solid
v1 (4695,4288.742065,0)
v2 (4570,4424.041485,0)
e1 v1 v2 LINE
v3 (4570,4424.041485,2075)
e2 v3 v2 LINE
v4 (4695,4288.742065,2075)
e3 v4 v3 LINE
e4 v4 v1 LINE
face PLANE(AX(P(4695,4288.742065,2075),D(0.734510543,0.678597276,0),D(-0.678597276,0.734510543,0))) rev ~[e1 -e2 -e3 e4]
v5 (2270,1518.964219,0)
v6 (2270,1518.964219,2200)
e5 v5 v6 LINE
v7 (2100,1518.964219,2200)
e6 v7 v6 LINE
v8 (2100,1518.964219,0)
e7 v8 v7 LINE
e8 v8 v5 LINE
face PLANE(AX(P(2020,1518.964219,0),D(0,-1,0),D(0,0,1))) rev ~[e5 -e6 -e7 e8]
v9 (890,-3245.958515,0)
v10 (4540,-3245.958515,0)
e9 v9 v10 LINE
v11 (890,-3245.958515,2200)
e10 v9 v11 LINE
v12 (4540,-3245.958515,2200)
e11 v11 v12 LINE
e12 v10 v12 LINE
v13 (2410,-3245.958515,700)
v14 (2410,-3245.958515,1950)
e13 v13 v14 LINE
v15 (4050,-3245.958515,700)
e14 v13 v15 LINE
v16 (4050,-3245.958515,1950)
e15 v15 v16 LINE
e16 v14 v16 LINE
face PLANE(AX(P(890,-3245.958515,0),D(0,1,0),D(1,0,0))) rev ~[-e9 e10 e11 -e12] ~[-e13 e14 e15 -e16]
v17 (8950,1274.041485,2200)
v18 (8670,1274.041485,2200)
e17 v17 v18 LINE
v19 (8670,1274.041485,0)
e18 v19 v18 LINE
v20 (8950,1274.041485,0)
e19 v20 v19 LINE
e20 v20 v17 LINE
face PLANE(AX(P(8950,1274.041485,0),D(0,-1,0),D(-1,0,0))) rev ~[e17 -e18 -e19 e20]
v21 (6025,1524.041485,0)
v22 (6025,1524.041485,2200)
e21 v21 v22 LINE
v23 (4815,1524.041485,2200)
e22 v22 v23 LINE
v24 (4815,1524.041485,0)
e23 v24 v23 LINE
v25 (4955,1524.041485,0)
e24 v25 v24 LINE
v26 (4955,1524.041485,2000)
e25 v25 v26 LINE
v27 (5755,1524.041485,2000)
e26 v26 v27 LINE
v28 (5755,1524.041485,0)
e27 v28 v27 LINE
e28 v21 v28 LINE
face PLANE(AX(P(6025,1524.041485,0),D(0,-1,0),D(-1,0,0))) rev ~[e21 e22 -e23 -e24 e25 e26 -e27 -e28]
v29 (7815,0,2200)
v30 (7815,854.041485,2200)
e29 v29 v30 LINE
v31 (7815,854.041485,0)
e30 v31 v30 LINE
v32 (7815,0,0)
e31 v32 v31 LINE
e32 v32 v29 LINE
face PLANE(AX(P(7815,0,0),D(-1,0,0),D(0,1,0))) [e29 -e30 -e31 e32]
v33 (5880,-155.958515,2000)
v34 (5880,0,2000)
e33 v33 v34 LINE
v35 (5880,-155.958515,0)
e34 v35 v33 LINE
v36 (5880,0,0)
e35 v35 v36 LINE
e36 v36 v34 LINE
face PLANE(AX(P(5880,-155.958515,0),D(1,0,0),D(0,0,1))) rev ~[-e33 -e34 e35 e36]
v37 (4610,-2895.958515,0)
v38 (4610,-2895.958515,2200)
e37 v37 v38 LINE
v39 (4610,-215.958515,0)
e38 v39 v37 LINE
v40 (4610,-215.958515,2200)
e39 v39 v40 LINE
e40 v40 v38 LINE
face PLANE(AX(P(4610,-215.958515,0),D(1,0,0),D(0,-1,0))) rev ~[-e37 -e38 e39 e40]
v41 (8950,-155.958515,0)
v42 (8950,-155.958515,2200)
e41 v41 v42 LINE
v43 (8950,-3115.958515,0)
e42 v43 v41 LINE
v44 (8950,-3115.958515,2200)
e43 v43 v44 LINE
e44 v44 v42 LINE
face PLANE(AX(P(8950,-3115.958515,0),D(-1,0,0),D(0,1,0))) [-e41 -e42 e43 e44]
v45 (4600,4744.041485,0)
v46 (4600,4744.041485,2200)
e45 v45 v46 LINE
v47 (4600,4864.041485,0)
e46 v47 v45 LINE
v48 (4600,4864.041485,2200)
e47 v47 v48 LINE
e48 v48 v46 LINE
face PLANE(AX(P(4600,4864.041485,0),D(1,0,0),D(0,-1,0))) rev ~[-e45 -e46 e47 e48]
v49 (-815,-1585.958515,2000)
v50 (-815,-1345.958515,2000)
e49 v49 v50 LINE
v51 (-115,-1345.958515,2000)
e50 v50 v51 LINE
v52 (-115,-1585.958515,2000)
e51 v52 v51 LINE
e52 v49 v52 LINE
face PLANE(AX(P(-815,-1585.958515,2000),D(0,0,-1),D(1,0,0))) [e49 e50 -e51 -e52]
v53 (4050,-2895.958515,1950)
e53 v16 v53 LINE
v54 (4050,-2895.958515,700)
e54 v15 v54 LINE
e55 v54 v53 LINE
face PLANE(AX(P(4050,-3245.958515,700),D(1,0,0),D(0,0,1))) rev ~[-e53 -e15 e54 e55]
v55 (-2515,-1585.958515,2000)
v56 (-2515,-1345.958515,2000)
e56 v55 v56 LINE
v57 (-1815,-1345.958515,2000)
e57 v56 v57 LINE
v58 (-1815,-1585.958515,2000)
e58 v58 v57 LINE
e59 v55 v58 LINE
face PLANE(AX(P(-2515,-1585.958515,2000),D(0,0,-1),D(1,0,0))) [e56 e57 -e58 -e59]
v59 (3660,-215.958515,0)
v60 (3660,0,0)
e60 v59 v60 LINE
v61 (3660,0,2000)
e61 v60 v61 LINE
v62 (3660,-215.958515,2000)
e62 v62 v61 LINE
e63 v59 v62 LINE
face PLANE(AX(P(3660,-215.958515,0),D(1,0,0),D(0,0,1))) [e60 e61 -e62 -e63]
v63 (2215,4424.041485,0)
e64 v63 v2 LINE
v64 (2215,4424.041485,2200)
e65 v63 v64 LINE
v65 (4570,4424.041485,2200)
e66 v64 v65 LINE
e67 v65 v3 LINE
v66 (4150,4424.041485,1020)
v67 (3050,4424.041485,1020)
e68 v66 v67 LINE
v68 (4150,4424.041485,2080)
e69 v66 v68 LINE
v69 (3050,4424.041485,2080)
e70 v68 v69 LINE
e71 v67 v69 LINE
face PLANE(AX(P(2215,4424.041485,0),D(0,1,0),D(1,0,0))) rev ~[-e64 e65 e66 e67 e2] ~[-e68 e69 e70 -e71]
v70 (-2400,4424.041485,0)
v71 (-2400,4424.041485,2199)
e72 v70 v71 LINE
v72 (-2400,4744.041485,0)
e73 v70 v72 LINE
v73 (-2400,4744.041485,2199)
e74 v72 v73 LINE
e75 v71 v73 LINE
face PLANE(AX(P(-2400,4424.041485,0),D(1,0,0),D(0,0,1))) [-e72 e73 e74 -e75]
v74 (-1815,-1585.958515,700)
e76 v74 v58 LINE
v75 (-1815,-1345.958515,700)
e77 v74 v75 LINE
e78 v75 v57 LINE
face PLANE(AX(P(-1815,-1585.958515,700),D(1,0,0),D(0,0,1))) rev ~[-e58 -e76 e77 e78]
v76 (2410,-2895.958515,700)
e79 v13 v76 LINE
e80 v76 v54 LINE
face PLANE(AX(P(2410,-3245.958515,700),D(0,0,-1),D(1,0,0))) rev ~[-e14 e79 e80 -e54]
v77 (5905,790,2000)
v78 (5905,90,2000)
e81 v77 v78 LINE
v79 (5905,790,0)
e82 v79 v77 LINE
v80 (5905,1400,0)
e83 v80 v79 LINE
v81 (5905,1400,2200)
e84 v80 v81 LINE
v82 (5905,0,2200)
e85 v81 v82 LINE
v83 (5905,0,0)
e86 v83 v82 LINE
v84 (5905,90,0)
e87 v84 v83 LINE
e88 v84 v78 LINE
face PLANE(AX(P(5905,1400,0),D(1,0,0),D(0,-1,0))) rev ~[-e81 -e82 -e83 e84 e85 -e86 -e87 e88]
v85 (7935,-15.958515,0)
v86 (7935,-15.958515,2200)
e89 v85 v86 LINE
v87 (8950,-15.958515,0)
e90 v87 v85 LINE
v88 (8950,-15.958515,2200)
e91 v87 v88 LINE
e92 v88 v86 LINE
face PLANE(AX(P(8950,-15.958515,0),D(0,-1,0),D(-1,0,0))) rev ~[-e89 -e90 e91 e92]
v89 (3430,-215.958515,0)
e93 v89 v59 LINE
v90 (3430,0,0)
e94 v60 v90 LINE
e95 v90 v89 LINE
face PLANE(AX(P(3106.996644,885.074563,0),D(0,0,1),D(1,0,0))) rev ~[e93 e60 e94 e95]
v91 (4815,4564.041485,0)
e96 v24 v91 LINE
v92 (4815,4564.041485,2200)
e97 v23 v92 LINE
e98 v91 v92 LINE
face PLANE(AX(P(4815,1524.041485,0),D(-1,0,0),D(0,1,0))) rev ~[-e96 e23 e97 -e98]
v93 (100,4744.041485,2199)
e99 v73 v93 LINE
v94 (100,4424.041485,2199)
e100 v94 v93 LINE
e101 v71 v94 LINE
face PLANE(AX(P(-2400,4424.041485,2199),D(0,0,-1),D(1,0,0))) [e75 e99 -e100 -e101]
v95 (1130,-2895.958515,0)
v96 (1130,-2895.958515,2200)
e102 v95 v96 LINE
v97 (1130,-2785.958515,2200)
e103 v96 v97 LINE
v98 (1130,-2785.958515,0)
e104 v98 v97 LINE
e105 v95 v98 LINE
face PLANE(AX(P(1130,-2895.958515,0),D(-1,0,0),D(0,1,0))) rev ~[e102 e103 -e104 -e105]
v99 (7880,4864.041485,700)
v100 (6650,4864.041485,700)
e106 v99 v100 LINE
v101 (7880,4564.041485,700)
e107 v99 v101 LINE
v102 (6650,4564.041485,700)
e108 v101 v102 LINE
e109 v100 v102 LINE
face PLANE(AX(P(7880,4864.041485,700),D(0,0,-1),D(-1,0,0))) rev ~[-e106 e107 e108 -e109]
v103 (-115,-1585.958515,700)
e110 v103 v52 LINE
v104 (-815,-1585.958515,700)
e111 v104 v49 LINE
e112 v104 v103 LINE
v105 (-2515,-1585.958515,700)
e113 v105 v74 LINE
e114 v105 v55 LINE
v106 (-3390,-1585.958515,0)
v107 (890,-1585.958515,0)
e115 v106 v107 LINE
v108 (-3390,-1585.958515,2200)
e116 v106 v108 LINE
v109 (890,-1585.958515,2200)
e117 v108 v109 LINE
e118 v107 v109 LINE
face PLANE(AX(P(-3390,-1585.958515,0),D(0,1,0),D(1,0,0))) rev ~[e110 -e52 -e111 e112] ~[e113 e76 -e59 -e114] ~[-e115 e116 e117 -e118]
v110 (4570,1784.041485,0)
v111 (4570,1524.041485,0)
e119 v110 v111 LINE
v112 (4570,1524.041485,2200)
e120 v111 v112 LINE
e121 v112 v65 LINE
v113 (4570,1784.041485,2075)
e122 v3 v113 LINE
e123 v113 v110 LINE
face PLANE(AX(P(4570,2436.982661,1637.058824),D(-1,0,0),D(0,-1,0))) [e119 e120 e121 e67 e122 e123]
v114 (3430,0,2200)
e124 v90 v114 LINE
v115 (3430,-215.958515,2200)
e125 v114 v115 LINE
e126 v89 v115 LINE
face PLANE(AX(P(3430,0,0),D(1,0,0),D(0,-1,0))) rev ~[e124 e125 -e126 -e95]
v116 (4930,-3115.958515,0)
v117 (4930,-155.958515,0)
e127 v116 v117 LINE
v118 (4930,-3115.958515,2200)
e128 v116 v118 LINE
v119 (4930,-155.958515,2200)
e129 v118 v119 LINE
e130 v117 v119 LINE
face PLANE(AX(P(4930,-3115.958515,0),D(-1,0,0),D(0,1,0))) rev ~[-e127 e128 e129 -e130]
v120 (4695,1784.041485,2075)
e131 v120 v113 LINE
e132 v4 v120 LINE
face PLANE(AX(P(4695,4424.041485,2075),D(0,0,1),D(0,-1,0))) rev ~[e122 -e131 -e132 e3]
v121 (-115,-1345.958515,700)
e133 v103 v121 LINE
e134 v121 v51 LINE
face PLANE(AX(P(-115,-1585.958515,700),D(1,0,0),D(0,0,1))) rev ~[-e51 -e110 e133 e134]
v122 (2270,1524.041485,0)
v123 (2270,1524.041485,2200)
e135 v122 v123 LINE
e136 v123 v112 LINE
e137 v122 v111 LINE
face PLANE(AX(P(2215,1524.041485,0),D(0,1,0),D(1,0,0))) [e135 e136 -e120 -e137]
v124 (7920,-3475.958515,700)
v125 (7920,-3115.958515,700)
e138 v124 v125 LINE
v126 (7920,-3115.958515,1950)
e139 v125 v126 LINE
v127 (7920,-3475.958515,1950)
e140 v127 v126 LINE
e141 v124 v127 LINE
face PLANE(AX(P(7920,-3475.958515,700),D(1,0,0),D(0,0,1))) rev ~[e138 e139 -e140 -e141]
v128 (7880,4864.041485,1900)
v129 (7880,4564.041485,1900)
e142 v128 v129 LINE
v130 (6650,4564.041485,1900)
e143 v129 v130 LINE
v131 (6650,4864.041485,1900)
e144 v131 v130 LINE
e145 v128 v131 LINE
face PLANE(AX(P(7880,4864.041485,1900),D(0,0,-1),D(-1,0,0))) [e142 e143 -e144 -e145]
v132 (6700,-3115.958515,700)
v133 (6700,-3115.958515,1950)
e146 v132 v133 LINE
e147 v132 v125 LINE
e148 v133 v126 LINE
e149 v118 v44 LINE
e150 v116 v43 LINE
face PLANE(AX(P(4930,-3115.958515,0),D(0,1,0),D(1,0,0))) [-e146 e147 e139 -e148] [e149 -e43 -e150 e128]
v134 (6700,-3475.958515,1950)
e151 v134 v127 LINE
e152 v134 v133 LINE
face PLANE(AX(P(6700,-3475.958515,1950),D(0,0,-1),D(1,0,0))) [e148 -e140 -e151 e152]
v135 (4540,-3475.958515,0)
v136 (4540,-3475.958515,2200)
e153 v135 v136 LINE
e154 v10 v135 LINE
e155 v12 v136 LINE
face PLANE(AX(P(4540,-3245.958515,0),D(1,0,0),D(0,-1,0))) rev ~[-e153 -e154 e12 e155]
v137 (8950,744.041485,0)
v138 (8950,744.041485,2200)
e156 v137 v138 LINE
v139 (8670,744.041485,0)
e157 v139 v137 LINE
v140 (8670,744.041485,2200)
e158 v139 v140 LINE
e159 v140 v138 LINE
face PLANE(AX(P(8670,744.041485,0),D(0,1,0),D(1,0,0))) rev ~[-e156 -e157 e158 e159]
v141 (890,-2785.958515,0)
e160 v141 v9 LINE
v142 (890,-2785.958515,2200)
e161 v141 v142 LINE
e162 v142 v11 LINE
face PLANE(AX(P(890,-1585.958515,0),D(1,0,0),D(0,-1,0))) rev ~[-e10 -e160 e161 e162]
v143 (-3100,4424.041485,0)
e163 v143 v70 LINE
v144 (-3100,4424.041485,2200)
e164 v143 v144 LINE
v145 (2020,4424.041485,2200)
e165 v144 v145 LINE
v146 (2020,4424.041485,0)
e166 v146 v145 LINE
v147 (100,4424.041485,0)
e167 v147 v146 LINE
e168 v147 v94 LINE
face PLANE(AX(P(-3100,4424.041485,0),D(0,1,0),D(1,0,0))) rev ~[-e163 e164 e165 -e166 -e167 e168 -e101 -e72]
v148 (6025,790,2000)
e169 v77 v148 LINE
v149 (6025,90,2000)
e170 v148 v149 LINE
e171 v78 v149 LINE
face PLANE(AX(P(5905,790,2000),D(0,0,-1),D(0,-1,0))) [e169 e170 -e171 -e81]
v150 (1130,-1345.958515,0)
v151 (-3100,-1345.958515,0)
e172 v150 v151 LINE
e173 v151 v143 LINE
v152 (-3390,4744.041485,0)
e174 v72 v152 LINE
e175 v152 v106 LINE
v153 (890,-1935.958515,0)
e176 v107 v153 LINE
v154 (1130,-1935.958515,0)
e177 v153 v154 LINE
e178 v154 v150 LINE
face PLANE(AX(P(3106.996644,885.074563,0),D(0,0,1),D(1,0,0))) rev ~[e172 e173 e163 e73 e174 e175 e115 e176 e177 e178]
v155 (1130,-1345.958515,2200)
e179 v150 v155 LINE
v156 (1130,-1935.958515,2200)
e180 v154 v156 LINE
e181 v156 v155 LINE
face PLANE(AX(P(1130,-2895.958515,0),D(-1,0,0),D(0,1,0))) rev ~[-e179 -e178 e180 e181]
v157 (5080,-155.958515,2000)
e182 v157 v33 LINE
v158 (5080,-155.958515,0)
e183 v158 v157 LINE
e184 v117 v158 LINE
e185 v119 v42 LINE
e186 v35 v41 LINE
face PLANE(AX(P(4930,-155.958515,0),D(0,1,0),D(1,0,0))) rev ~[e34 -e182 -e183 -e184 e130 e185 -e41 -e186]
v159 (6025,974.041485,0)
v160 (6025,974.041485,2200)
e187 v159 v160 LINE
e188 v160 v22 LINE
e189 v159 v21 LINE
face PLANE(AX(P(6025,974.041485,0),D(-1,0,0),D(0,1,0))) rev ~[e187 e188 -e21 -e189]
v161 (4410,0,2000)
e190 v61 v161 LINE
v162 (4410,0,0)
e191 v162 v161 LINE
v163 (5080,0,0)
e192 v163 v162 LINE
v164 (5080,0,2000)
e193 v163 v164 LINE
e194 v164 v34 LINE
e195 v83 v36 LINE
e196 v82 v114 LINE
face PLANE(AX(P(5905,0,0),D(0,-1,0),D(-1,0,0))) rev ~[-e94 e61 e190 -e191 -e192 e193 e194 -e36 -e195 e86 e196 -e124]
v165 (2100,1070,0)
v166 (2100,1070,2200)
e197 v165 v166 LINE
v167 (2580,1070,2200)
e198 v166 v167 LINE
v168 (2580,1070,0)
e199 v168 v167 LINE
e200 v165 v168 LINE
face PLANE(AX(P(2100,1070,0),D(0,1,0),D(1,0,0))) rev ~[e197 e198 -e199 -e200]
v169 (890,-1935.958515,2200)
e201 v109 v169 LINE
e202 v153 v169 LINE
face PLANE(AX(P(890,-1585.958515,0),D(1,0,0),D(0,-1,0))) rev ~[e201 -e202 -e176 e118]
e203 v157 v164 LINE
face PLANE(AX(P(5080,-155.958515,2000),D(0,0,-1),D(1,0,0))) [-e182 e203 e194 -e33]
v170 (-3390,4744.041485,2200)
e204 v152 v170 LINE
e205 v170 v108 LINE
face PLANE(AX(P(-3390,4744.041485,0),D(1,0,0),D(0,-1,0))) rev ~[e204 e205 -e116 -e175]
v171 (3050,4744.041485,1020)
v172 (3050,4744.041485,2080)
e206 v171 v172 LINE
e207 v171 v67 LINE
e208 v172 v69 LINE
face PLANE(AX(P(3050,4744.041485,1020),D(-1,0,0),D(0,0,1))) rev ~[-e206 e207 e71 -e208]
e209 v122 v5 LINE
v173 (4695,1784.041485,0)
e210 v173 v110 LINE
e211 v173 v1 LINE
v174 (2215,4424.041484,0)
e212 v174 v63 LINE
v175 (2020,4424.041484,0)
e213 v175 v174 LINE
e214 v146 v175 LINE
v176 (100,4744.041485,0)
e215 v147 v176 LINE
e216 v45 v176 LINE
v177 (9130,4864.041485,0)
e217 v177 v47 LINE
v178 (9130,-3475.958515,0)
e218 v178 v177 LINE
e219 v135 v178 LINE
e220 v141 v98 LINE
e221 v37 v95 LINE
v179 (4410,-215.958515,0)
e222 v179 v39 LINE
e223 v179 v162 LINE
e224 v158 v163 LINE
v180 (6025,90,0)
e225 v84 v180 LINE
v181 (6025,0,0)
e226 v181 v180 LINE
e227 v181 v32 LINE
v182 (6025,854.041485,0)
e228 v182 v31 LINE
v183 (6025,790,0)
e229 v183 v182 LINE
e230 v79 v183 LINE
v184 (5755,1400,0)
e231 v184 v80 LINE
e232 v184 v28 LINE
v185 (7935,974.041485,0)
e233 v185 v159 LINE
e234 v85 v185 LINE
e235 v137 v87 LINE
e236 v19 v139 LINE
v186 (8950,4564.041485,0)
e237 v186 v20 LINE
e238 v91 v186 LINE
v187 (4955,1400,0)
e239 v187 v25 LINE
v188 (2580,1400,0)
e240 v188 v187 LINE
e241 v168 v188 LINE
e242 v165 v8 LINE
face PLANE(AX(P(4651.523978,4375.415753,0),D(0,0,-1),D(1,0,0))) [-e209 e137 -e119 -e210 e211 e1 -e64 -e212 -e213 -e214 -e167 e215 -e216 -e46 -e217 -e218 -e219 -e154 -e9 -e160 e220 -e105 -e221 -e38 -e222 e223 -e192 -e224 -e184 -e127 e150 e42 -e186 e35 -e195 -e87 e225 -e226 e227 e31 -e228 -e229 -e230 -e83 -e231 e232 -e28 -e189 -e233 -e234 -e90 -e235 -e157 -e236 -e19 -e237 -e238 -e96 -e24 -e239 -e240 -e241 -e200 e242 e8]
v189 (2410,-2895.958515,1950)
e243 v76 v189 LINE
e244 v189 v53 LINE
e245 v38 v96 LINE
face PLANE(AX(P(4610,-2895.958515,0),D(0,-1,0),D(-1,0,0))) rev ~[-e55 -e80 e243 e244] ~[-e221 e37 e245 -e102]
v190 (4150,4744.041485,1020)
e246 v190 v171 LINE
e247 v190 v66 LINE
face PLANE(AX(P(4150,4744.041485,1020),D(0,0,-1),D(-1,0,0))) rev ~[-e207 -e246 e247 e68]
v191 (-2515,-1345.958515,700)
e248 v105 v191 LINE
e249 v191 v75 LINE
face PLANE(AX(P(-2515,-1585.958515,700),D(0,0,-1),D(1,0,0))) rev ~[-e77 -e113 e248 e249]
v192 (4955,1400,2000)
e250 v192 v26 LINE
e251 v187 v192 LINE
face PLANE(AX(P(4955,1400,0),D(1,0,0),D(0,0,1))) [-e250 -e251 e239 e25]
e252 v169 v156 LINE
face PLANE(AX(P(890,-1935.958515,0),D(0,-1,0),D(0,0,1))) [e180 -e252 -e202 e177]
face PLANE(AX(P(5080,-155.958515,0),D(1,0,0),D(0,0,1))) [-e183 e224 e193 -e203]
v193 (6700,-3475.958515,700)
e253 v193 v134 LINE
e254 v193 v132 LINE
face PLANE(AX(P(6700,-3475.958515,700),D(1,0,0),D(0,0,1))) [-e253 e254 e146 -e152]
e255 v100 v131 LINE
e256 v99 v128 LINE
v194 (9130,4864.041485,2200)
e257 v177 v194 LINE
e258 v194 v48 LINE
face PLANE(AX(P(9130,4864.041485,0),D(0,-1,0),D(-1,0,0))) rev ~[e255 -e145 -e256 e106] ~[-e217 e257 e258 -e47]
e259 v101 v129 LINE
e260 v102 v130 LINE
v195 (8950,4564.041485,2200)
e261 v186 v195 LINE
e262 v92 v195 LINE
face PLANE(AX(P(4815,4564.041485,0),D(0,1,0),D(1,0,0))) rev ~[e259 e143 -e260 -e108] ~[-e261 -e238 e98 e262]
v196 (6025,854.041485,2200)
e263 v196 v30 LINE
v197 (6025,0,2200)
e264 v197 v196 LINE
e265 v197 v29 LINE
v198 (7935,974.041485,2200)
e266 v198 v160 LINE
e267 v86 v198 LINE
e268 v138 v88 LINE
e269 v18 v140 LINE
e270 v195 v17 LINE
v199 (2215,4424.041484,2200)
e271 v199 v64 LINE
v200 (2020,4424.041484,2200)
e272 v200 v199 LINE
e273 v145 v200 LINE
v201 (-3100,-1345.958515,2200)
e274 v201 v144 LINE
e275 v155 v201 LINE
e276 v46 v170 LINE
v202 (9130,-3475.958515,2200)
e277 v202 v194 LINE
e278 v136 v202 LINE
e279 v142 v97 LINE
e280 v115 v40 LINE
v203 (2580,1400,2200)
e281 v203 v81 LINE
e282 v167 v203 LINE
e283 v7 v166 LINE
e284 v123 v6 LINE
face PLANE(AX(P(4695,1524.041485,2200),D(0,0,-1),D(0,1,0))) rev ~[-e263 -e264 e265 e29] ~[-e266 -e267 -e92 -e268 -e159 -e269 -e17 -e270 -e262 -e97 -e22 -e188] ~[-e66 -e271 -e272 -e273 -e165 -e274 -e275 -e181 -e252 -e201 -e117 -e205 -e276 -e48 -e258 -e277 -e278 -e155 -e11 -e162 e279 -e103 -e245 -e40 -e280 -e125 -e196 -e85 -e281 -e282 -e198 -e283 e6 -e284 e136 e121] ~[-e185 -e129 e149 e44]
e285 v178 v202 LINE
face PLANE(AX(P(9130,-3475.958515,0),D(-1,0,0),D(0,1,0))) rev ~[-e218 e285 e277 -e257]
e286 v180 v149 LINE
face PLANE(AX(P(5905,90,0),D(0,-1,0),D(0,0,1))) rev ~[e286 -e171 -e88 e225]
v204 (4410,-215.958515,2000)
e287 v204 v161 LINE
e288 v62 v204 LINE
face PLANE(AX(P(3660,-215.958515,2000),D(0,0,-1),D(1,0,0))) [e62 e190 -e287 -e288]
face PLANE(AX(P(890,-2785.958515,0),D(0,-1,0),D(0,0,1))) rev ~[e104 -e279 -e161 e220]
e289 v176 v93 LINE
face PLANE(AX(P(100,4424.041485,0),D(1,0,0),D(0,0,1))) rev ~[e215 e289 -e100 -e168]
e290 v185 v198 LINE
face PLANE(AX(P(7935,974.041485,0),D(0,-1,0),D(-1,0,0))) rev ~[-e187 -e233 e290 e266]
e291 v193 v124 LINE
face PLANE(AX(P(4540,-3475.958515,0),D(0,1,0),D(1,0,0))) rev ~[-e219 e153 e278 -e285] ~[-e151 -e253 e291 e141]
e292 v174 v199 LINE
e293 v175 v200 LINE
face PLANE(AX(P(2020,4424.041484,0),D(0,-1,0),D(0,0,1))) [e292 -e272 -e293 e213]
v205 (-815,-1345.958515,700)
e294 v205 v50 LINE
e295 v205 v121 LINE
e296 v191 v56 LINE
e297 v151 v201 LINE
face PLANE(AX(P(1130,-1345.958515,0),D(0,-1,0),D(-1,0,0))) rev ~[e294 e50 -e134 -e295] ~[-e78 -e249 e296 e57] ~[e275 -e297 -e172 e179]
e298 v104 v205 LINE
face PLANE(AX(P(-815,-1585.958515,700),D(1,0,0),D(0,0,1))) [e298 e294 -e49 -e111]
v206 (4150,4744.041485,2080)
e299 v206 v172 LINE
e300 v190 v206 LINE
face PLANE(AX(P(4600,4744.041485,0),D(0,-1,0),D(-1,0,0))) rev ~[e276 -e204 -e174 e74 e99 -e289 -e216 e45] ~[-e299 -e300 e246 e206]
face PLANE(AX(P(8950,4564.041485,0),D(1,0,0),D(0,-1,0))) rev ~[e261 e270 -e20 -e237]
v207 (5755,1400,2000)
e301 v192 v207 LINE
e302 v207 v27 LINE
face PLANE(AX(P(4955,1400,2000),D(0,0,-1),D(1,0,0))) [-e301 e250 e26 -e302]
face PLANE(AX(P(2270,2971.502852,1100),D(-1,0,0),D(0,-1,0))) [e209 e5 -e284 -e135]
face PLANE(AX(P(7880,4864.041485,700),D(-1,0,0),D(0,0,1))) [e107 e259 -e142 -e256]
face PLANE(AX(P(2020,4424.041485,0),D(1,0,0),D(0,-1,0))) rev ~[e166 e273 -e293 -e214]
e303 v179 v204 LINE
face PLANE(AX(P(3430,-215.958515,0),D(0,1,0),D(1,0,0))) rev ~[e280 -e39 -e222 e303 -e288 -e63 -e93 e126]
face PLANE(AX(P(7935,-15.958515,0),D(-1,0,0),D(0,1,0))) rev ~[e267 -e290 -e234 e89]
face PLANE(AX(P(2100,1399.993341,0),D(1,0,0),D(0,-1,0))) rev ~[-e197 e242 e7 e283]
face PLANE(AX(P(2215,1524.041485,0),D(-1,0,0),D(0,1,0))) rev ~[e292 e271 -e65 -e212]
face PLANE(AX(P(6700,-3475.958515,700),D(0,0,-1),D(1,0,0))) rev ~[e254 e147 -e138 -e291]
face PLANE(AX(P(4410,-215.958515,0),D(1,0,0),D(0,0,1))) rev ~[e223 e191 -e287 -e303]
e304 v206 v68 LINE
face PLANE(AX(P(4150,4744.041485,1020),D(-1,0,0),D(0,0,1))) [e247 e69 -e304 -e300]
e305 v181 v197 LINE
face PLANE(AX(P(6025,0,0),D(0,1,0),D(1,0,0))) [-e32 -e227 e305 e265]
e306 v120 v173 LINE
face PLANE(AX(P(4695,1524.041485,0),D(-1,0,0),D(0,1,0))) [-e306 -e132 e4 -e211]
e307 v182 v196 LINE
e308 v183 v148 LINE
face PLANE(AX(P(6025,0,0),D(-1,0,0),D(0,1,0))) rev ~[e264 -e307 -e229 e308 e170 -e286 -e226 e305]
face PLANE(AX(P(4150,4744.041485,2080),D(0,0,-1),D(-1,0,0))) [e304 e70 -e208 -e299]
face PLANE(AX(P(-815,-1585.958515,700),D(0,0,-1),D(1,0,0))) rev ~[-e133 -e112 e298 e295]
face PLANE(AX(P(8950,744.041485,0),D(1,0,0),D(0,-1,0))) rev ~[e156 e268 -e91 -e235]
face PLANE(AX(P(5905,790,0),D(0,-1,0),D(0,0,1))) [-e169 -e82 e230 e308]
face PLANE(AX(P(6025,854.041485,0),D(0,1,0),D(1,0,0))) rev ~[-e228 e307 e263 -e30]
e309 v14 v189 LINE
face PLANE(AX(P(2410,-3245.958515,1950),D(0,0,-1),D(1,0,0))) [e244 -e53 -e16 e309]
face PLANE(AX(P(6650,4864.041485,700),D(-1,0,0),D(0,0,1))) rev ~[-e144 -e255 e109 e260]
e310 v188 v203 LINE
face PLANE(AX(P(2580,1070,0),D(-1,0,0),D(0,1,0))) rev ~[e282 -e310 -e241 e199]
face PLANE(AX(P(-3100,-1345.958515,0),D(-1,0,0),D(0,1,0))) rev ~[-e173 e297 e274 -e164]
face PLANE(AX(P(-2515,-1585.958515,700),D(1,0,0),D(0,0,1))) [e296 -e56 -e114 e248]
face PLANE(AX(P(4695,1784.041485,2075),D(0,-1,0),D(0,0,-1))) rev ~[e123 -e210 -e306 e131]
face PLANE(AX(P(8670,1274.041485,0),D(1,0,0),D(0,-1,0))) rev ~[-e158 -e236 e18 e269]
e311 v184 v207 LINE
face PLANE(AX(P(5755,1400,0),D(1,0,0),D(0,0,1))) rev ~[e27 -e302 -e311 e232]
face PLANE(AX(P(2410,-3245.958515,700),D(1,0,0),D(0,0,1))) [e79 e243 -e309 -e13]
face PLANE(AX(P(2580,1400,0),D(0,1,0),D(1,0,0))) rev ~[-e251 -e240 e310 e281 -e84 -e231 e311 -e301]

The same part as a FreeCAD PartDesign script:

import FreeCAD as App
import Part
import Sketcher

V = App.Vector


def add_polygon(sketch, points):
    """Adds a closed chain of lines whose ends are joined by coincident constraints."""
    first, n = sketch.GeometryCount, len(points)
    for a, b in zip(points, points[1:] + points[:1]):
        sketch.addGeometry(Part.LineSegment(App.Vector(*a, 0), App.Vector(*b, 0)), False)
    for i in range(n):
        sketch.addConstraint(Sketcher.Constraint("Coincident", first + i, 2, first + (i + 1) % n, 1))

doc = App.newDocument("Part")
params = doc.addObject("Spreadsheet::Sheet", "Params")
for row, (alias, value) in enumerate([
    ("sketch1_width", "4280 mm"),
    ("sketch1_width2", "3650 mm"),
    ("sketch1_width3", "4590 mm"),
    ("sketch1_width4", "4530 mm"),
    ("sketch1_width5", "4020 mm"),
    ("pad1_length", "2200 mm"),
    ("sketch2_width", "2500 mm"),
    ("sketch2_height", "2199 mm"),
    ("pocket1_length", "350 mm"),
    ("sketch3_height", "2200 mm"),
    ("pocket2_length", "250 mm"),
    ("sketch4_width", "990 mm"),
    ("sketch4_height", "2200 mm"),
    ("pocket3_length", "130 mm"),
    ("sketch5_width", "750 mm"),
    ("sketch5_height", "2000 mm"),
    ("pocket4_length", "250 mm"),
    ("sketch6_width", "800 mm"),
    ("sketch6_height", "2000 mm"),
    ("pocket5_length", "200 mm"),
    ("sketch7_width", "800 mm"),
    ("sketch7_height", "2000 mm"),
    ("pocket6_length", "200 mm"),
    ("sketch8_width", "700 mm"),
    ("sketch8_height", "1300 mm"),
    ("pocket7_length", "240 mm"),
    ("sketch9_width", "1640 mm"),
    ("sketch9_height", "1250 mm"),
    ("pocket8_length", "350 mm"),
    ("sketch10_width", "1220 mm"),
    ("sketch10_height", "1250 mm"),
    ("pocket9_length", "360 mm"),
    ("sketch11_width", "1230 mm"),
    ("sketch11_height", "1200 mm"),
    ("pocket10_length", "300 mm"),
    ("sketch12_width", "1100 mm"),
    ("sketch12_height", "1060 mm"),
    ("pocket11_length", "320 mm"),
    ("sketch13_width", "850 mm"),
    ("sketch13_height", "2200 mm"),
    ("pocket12_length", "240 mm"),
    ("sketch14_width", "700 mm"),
    ("sketch14_height", "2000 mm"),
    ("pocket13_length", "120 mm"),
    ("sketch15_width", "260 mm"),
    ("sketch15_width2", "2900 mm"),
    ("sketch15_height", "2075 mm"),
    ("sketch15_height2", "2200 mm"),
    ("pad2_length", "125 mm"),
    ("sketch16_width", "125 mm"),
    ("pad3_length", "2075 mm"),
], start=1):
    params.set(f"A{row}", alias)
    params.set(f"B{row}", "=" + value)
    params.setAlias(f"B{row}", alias)

body = doc.addObject("PartDesign::Body", "Body")

# Sketch on XY plane
sketch1 = body.newObject("Sketcher::SketchObject", "Sketch")
sketch1.AttachmentSupport = (doc.getObject("XY_Plane"), [""])
sketch1.MapMode = "FlatFace"
add_polygon(sketch1, [(-3390, -1585.958515), (890, -1585.958515), (890, -3245.958515), (4540, -3245.958515), (4540, -3475.958515), (9130, -3475.958515), (9130, 4864.041485), (4600, 4864.041485), (4600, 4744.041485), (-3390, 4744.041485)])  # lines 0-9
add_polygon(sketch1, [(8950, -3115.958515), (4930, -3115.958515), (4930, -155.958515), (8950, -155.958515)])  # lines 10-13
add_polygon(sketch1, [(7815, 0), (6025, 0), (6025, 854.041485), (7815, 854.041485)])  # lines 14-17
add_polygon(sketch1, [(3430, -215.958515), (4610, -215.958515), (4610, -2895.958515), (1130, -2895.958515), (1130, -1345.958515), (-3100, -1345.958515), (-3100, 4424.041485), (2020, 4424.041485), (2020, 1518.96422), (1110, 1518.96422), (1110, 1399.993341), (2100, 1399.993341), (2100, 1070), (2580, 1070), (2580, 1400), (5905, 1400), (5905, 0), (3430, 0)])  # lines 18-35
add_polygon(sketch1, [(6025, 1524.041485), (4815, 1524.041485), (4815, 4564.041485), (8950, 4564.041485), (8950, 1274.041485), (8670, 1274.041485), (8670, 744.041485), (8950, 744.041485), (8950, -15.958515), (7935, -15.958515), (7935, 974.041485), (6025, 974.041485)])  # lines 36-47
add_polygon(sketch1, [(4695, 1524.041485), (2215, 1524.041485), (2215, 4424.041485), (4695, 4424.041485)])  # lines 48-51
sketch1.addConstraint(Sketcher.Constraint("Horizontal", 0))
sketch1.addConstraint(Sketcher.Constraint("Vertical", 1))
sketch1.addConstraint(Sketcher.Constraint("Horizontal", 2))
sketch1.addConstraint(Sketcher.Constraint("Vertical", 3))
sketch1.addConstraint(Sketcher.Constraint("Horizontal", 4))
sketch1.addConstraint(Sketcher.Constraint("Vertical", 5))
sketch1.addConstraint(Sketcher.Constraint("Horizontal", 6))
sketch1.addConstraint(Sketcher.Constraint("Vertical", 7))
sketch1.addConstraint(Sketcher.Constraint("Horizontal", 8))
sketch1.addConstraint(Sketcher.Constraint("Vertical", 9))
sketch1.addConstraint(Sketcher.Constraint("Horizontal", 10))
sketch1.addConstraint(Sketcher.Constraint("Vertical", 11))
sketch1.addConstraint(Sketcher.Constraint("Horizontal", 12))
sketch1.addConstraint(Sketcher.Constraint("Vertical", 13))
sketch1.addConstraint(Sketcher.Constraint("Horizontal", 14))
sketch1.addConstraint(Sketcher.Constraint("Vertical", 15))
sketch1.addConstraint(Sketcher.Constraint("Horizontal", 16))
sketch1.addConstraint(Sketcher.Constraint("Vertical", 17))
sketch1.addConstraint(Sketcher.Constraint("Horizontal", 18))
sketch1.addConstraint(Sketcher.Constraint("Vertical", 19))
sketch1.addConstraint(Sketcher.Constraint("Horizontal", 20))
sketch1.addConstraint(Sketcher.Constraint("Vertical", 21))
sketch1.addConstraint(Sketcher.Constraint("Horizontal", 22))
sketch1.addConstraint(Sketcher.Constraint("Vertical", 23))
sketch1.addConstraint(Sketcher.Constraint("Horizontal", 24))
sketch1.addConstraint(Sketcher.Constraint("Vertical", 25))
sketch1.addConstraint(Sketcher.Constraint("Horizontal", 26))
sketch1.addConstraint(Sketcher.Constraint("Vertical", 27))
sketch1.addConstraint(Sketcher.Constraint("Horizontal", 28))
sketch1.addConstraint(Sketcher.Constraint("Vertical", 29))
sketch1.addConstraint(Sketcher.Constraint("Horizontal", 30))
sketch1.addConstraint(Sketcher.Constraint("Vertical", 31))
sketch1.addConstraint(Sketcher.Constraint("Horizontal", 32))
sketch1.addConstraint(Sketcher.Constraint("Vertical", 33))
sketch1.addConstraint(Sketcher.Constraint("Horizontal", 34))
sketch1.addConstraint(Sketcher.Constraint("Vertical", 35))
sketch1.addConstraint(Sketcher.Constraint("Horizontal", 36))
sketch1.addConstraint(Sketcher.Constraint("Vertical", 37))
sketch1.addConstraint(Sketcher.Constraint("Horizontal", 38))
sketch1.addConstraint(Sketcher.Constraint("Vertical", 39))
sketch1.addConstraint(Sketcher.Constraint("Horizontal", 40))
sketch1.addConstraint(Sketcher.Constraint("Vertical", 41))
sketch1.addConstraint(Sketcher.Constraint("Horizontal", 42))
sketch1.addConstraint(Sketcher.Constraint("Vertical", 43))
sketch1.addConstraint(Sketcher.Constraint("Horizontal", 44))
sketch1.addConstraint(Sketcher.Constraint("Vertical", 45))
sketch1.addConstraint(Sketcher.Constraint("Horizontal", 46))
sketch1.addConstraint(Sketcher.Constraint("Vertical", 47))
sketch1.addConstraint(Sketcher.Constraint("Horizontal", 48))
sketch1.addConstraint(Sketcher.Constraint("Vertical", 49))
sketch1.addConstraint(Sketcher.Constraint("Horizontal", 50))
sketch1.addConstraint(Sketcher.Constraint("Vertical", 51))
sketch1.addConstraint(Sketcher.Constraint("PointOnObject", 14, 2, -1))
sketch1.addConstraint(Sketcher.Constraint("PointOnObject", 33, 2, -1))
sketch1.addConstraint(Sketcher.Constraint("Horizontal", 47, 2, 48, 2))
sketch1.addConstraint(Sketcher.Constraint("Horizontal", 24, 2, 49, 2))
sketch1.addConstraint(Sketcher.Constraint("Vertical", 13, 2, 38, 2))
sketch1.addConstraint(Sketcher.Constraint("Vertical", 39, 2, 42, 2))
sketch1.addConstraint(Sketcher.Constraint("Vertical", 15, 2, 46, 2))
sketch1.addConstraint(Sketcher.Constraint("Equal", 28, 45))
sketch1.addConstraint(Sketcher.Constraint("DistanceX", 0, 1, 0, 2, 4280.0))
sketch1.addConstraint(Sketcher.Constraint("DistanceX", 2, 1, 2, 2, 3650.0))
sketch1.addConstraint(Sketcher.Constraint("DistanceX", 4, 1, 4, 2, 4590.0))
sketch1.addConstraint(Sketcher.Constraint("DistanceX", 6, 2, 6, 1, 4530.0))
sketch1.addConstraint(Sketcher.Constraint("DistanceX", 10, 2, 10, 1, 4020.0))
sketch1.addConstraint(Sketcher.Constraint("DistanceX", 14, 2, 14, 1, 1790.0))
sketch1.addConstraint(Sketcher.Constraint("DistanceX", 18, 1, 18, 2, 1180.0))
sketch1.addConstraint(Sketcher.Constraint("DistanceX", 20, 2, 20, 1, 3480.0))
sketch1.addConstraint(Sketcher.Constraint("DistanceX", 22, 2, 22, 1, 4230.0))
sketch1.addConstraint(Sketcher.Constraint("DistanceX", 24, 1, 24, 2, 5120.0))
sketch1.addConstraint(Sketcher.Constraint("DistanceX", 26, 2, 26, 1, 910.0))
sketch1.addConstraint(Sketcher.Constraint("DistanceX", 28, 1, 28, 2, 990.0))
sketch1.addConstraint(Sketcher.Constraint("DistanceX", 30, 1, 30, 2, 480.0))
sketch1.addConstraint(Sketcher.Constraint("DistanceX", 32, 1, 32, 2, 3325.0))
sketch1.addConstraint(Sketcher.Constraint("DistanceX", 36, 2, 36, 1, 1210.0))
sketch1.addConstraint(Sketcher.Constraint("DistanceX", 38, 1, 38, 2, 4135.0))
sketch1.addConstraint(Sketcher.Constraint("DistanceX", 40, 2, 40, 1, 280.0))
sketch1.addConstraint(Sketcher.Constraint("DistanceX", 44, 2, 44, 1, 1015.0))
sketch1.addConstraint(Sketcher.Constraint("DistanceX", 48, 2, 48, 1, 2480.0))
sketch1.addConstraint(Sketcher.Constraint("DistanceY", 1, 2, 1, 1, 1660.0))
sketch1.addConstraint(Sketcher.Constraint("DistanceY", 3, 2, 3, 1, 230.0))
sketch1.addConstraint(Sketcher.Constraint("DistanceY", 5, 1, 5, 2, 8340.0))
sketch1.addConstraint(Sketcher.Constraint("DistanceY", 7, 2, 7, 1, 120.0))
sketch1.addConstraint(Sketcher.Constraint("DistanceY", 11, 1, 11, 2, 2960.0))
sketch1.addConstraint(Sketcher.Constraint("DistanceY", 19, 2, 19, 1, 2680.0))
sketch1.addConstraint(Sketcher.Constraint("DistanceY", 21, 1, 21, 2, 1550.0))
sketch1.addConstraint(Sketcher.Constraint("DistanceY", 23, 1, 23, 2, 5770.0))
sketch1.addConstraint(Sketcher.Constraint("DistanceY", 31, 1, 31, 2, 330.0))
sketch1.addConstraint(Sketcher.Constraint("DistanceY", 33, 2, 33, 1, 1400.0))
sketch1.addConstraint(Sketcher.Constraint("DistanceY", 37, 1, 37, 2, 3040.0))
sketch1.addConstraint(Sketcher.Constraint("DistanceY", 39, 2, 39, 1, 3290.0))
sketch1.addConstraint(Sketcher.Constraint("DistanceY", 41, 2, 41, 1, 530.0))
sketch1.addConstraint(Sketcher.Constraint("DistanceY", 43, 2, 43, 1, 760.0))
sketch1.addConstraint(Sketcher.Constraint("DistanceY", 49, 1, 49, 2, 2900.0))
sketch1.addConstraint(Sketcher.Constraint("DistanceX", -1, 1, 0, 2, 890.0))
sketch1.addConstraint(Sketcher.Constraint("DistanceX", -1, 1, 10, 2, 4930.0))
sketch1.addConstraint(Sketcher.Constraint("DistanceX", -1, 1, 18, 2, 4610.0))
sketch1.addConstraint(Sketcher.Constraint("DistanceX", -1, 1, 48, 2, 2215.0))
sketch1.addConstraint(Sketcher.Constraint("DistanceY", 2, 2, 10, 2, 130.0))
sketch1.addConstraint(Sketcher.Constraint("DistanceY", 11, 2, 15, 2, 1010.0))
sketch1.addConstraint(Sketcher.Constraint("DistanceY", 18, 2, 11, 2, 60.0))
sketch1.addConstraint(Sketcher.Constraint("DistanceY", 27, 2, 27, 1, 118.970879))
sketch1.addConstraint(Sketcher.Constraint("DistanceY", 29, 2, 29, 1, 329.993341))
sketch1.addConstraint(Sketcher.Constraint("DistanceY", 15, 1, 15, 2, 854.041485))
sketch1.setExpression("Constraints[112]", "Params.sketch1_width")
sketch1.setExpression("Constraints[113]", "Params.sketch1_width2")
sketch1.setExpression("Constraints[114]", "Params.sketch1_width3")
sketch1.setExpression("Constraints[115]", "Params.sketch1_width4")
sketch1.setExpression("Constraints[116]", "Params.sketch1_width5")
pad1 = body.newObject("PartDesign::Pad", "Pad")
pad1.Profile = sketch1
pad1.setExpression("Length", "Params.pad1_length")

# Sketch on XZ plane
sketch2 = body.newObject("Sketcher::SketchObject", "Sketch001")
sketch2.AttachmentSupport = (doc.getObject("XZ_Plane"), [""])
sketch2.MapMode = "FlatFace"
sketch2.AttachmentOffset = App.Placement(V(0, 0, -4424.041485), App.Rotation())
add_polygon(sketch2, [(-2400, 2199), (-2400, 0), (100, 0), (100, 2199)])  # lines 0-3
sketch2.addConstraint(Sketcher.Constraint("Vertical", 0))
sketch2.addConstraint(Sketcher.Constraint("Horizontal", 1))
sketch2.addConstraint(Sketcher.Constraint("Vertical", 2))
sketch2.addConstraint(Sketcher.Constraint("Horizontal", 3))
sketch2.addConstraint(Sketcher.Constraint("PointOnObject", 0, 2, -1))
sketch2.addConstraint(Sketcher.Constraint("DistanceX", 1, 1, 1, 2, 2500.0))
sketch2.addConstraint(Sketcher.Constraint("DistanceY", 0, 2, 0, 1, 2199.0))
sketch2.addConstraint(Sketcher.Constraint("DistanceX", 0, 2, -1, 1, 2400.0))
sketch2.setExpression("Constraints[9]", "Params.sketch2_width")
sketch2.setExpression("Constraints[10]", "Params.sketch2_height")
pocket1 = body.newObject("PartDesign::Pocket", "Pocket")
pocket1.Profile = sketch2
pocket1.setExpression("Length", "Params.pocket1_length")

# Sketch on YZ plane
sketch3 = body.newObject("Sketcher::SketchObject", "Sketch002")
sketch3.AttachmentSupport = (doc.getObject("YZ_Plane"), [""])
sketch3.MapMode = "FlatFace"
sketch3.AttachmentOffset = App.Placement(V(0, 0, 2020), App.Rotation())
add_polygon(sketch3, [(4424.041484, 2200), (4424.041484, 0), (1518.964219, 0), (1518.964219, 2200)])  # lines 0-3
sketch3.addConstraint(Sketcher.Constraint("Vertical", 0))
sketch3.addConstraint(Sketcher.Constraint("Horizontal", 1))
sketch3.addConstraint(Sketcher.Constraint("Vertical", 2))
sketch3.addConstraint(Sketcher.Constraint("Horizontal", 3))
sketch3.addConstraint(Sketcher.Constraint("PointOnObject", 0, 2, -1))
sketch3.addConstraint(Sketcher.Constraint("DistanceY", 0, 2, 0, 1, 2200.0))
sketch3.addConstraint(Sketcher.Constraint("DistanceX", 1, 2, 1, 1, 2905.077265))
sketch3.addConstraint(Sketcher.Constraint("DistanceX", -1, 1, 1, 2, 1518.964219))
sketch3.setExpression("Constraints[9]", "Params.sketch3_height")
pocket2 = body.newObject("PartDesign::Pocket", "Pocket001")
pocket2.Profile = sketch3
pocket2.setExpression("Length", "Params.pocket2_length")
pocket2.Reversed = True

# Sketch on XZ plane
sketch4 = body.newObject("Sketcher::SketchObject", "Sketch003")
sketch4.AttachmentSupport = (doc.getObject("XZ_Plane"), [""])
sketch4.MapMode = "FlatFace"
sketch4.AttachmentOffset = App.Placement(V(0, 0, -1399.993341), App.Rotation())
add_polygon(sketch4, [(1110, 2200), (1110, 0), (2100, 0), (2100, 2200)])  # lines 0-3
sketch4.addConstraint(Sketcher.Constraint("Vertical", 0))
sketch4.addConstraint(Sketcher.Constraint("Horizontal", 1))
sketch4.addConstraint(Sketcher.Constraint("Vertical", 2))
sketch4.addConstraint(Sketcher.Constraint("Horizontal", 3))
sketch4.addConstraint(Sketcher.Constraint("PointOnObject", 0, 2, -1))
sketch4.addConstraint(Sketcher.Constraint("DistanceX", 1, 1, 1, 2, 990.0))
sketch4.addConstraint(Sketcher.Constraint("DistanceY", 0, 2, 0, 1, 2200.0))
sketch4.addConstraint(Sketcher.Constraint("DistanceX", -1, 1, 0, 2, 1110.0))
sketch4.setExpression("Constraints[9]", "Params.sketch4_width")
sketch4.setExpression("Constraints[10]", "Params.sketch4_height")
pocket3 = body.newObject("PartDesign::Pocket", "Pocket002")
pocket3.Profile = sketch4
pocket3.setExpression("Length", "Params.pocket3_length")

# Sketch on XZ plane
sketch5 = body.newObject("Sketcher::SketchObject", "Sketch004")
sketch5.AttachmentSupport = (doc.getObject("XZ_Plane"), [""])
sketch5.MapMode = "FlatFace"
sketch5.AttachmentOffset = App.Placement(V(0, 0, 215.958515), App.Rotation())
add_polygon(sketch5, [(3660, 2000), (3660, 0), (4410, 0), (4410, 2000)])  # lines 0-3
sketch5.addConstraint(Sketcher.Constraint("Vertical", 0))
sketch5.addConstraint(Sketcher.Constraint("Horizontal", 1))
sketch5.addConstraint(Sketcher.Constraint("Vertical", 2))
sketch5.addConstraint(Sketcher.Constraint("Horizontal", 3))
sketch5.addConstraint(Sketcher.Constraint("PointOnObject", 0, 2, -1))
sketch5.addConstraint(Sketcher.Constraint("DistanceX", 1, 1, 1, 2, 750.0))
sketch5.addConstraint(Sketcher.Constraint("DistanceY", 0, 2, 0, 1, 2000.0))
sketch5.addConstraint(Sketcher.Constraint("DistanceX", -1, 1, 0, 2, 3660.0))
sketch5.setExpression("Constraints[9]", "Params.sketch5_width")
sketch5.setExpression("Constraints[10]", "Params.sketch5_height")
pocket4 = body.newObject("PartDesign::Pocket", "Pocket003")
pocket4.Profile = sketch5
pocket4.setExpression("Length", "Params.pocket4_length")

# Sketch on XZ plane
sketch6 = body.newObject("Sketcher::SketchObject", "Sketch005")
sketch6.AttachmentSupport = (doc.getObject("XZ_Plane"), [""])
sketch6.MapMode = "FlatFace"
sketch6.AttachmentOffset = App.Placement(V(0, 0, -1400), App.Rotation())
add_polygon(sketch6, [(4955, 2000), (4955, 0), (5755, 0), (5755, 2000)])  # lines 0-3
sketch6.addConstraint(Sketcher.Constraint("Vertical", 0))
sketch6.addConstraint(Sketcher.Constraint("Horizontal", 1))
sketch6.addConstraint(Sketcher.Constraint("Vertical", 2))
sketch6.addConstraint(Sketcher.Constraint("Horizontal", 3))
sketch6.addConstraint(Sketcher.Constraint("PointOnObject", 0, 2, -1))
sketch6.addConstraint(Sketcher.Constraint("DistanceX", 1, 1, 1, 2, 800.0))
sketch6.addConstraint(Sketcher.Constraint("DistanceY", 0, 2, 0, 1, 2000.0))
sketch6.addConstraint(Sketcher.Constraint("DistanceX", -1, 1, 0, 2, 4955.0))
sketch6.setExpression("Constraints[9]", "Params.sketch6_width")
sketch6.setExpression("Constraints[10]", "Params.sketch6_height")
pocket5 = body.newObject("PartDesign::Pocket", "Pocket004")
pocket5.Profile = sketch6
pocket5.setExpression("Length", "Params.pocket5_length")

# Sketch on XZ plane
sketch7 = body.newObject("Sketcher::SketchObject", "Sketch006")
sketch7.AttachmentSupport = (doc.getObject("XZ_Plane"), [""])
sketch7.MapMode = "FlatFace"
sketch7.AttachmentOffset = App.Placement(V(0, 0, 155.958515), App.Rotation())
add_polygon(sketch7, [(5080, 2000), (5080, 0), (5880, 0), (5880, 2000)])  # lines 0-3
sketch7.addConstraint(Sketcher.Constraint("Vertical", 0))
sketch7.addConstraint(Sketcher.Constraint("Horizontal", 1))
sketch7.addConstraint(Sketcher.Constraint("Vertical", 2))
sketch7.addConstraint(Sketcher.Constraint("Horizontal", 3))
sketch7.addConstraint(Sketcher.Constraint("PointOnObject", 0, 2, -1))
sketch7.addConstraint(Sketcher.Constraint("DistanceX", 1, 1, 1, 2, 800.0))
sketch7.addConstraint(Sketcher.Constraint("DistanceY", 0, 2, 0, 1, 2000.0))
sketch7.addConstraint(Sketcher.Constraint("DistanceX", -1, 1, 0, 2, 5080.0))
sketch7.setExpression("Constraints[9]", "Params.sketch7_width")
sketch7.setExpression("Constraints[10]", "Params.sketch7_height")
pocket6 = body.newObject("PartDesign::Pocket", "Pocket005")
pocket6.Profile = sketch7
pocket6.setExpression("Length", "Params.pocket6_length")

# Sketch on XZ plane
sketch8 = body.newObject("Sketcher::SketchObject", "Sketch007")
sketch8.AttachmentSupport = (doc.getObject("XZ_Plane"), [""])
sketch8.MapMode = "FlatFace"
sketch8.AttachmentOffset = App.Placement(V(0, 0, 1585.958515), App.Rotation())
add_polygon(sketch8, [(-2515, 2000), (-2515, 700), (-1815, 700), (-1815, 2000)])  # lines 0-3
add_polygon(sketch8, [(-815, 2000), (-815, 700), (-115, 700), (-115, 2000)])  # lines 4-7
sketch8.addConstraint(Sketcher.Constraint("Vertical", 0))
sketch8.addConstraint(Sketcher.Constraint("Horizontal", 1))
sketch8.addConstraint(Sketcher.Constraint("Vertical", 2))
sketch8.addConstraint(Sketcher.Constraint("Horizontal", 3))
sketch8.addConstraint(Sketcher.Constraint("Vertical", 4))
sketch8.addConstraint(Sketcher.Constraint("Horizontal", 5))
sketch8.addConstraint(Sketcher.Constraint("Vertical", 6))
sketch8.addConstraint(Sketcher.Constraint("Horizontal", 7))
sketch8.addConstraint(Sketcher.Constraint("Horizontal", 1, 2, 4, 2))
sketch8.addConstraint(Sketcher.Constraint("Horizontal", 3, 2, 6, 2))
sketch8.addConstraint(Sketcher.Constraint("Equal", 3, 5))
sketch8.addConstraint(Sketcher.Constraint("DistanceX", 1, 1, 1, 2, 700.0))
sketch8.addConstraint(Sketcher.Constraint("DistanceY", 0, 2, 0, 1, 1300.0))
sketch8.addConstraint(Sketcher.Constraint("DistanceX", 0, 2, -1, 1, 2515.0))
sketch8.addConstraint(Sketcher.Constraint("DistanceY", -1, 1, 0, 2, 700.0))
sketch8.addConstraint(Sketcher.Constraint("DistanceX", 4, 2, -1, 1, 815.0))
sketch8.setExpression("Constraints[19]", "Params.sketch8_width")
sketch8.setExpression("Constraints[20]", "Params.sketch8_height")
pocket7 = body.newObject("PartDesign::Pocket", "Pocket006")
pocket7.Profile = sketch8
pocket7.setExpression("Length", "Params.pocket7_length")

# Sketch on XZ plane
sketch9 = body.newObject("Sketcher::SketchObject", "Sketch008")
sketch9.AttachmentSupport = (doc.getObject("XZ_Plane"), [""])
sketch9.MapMode = "FlatFace"
sketch9.AttachmentOffset = App.Placement(V(0, 0, 3245.958515), App.Rotation())
add_polygon(sketch9, [(2410, 1950), (2410, 700), (4050, 700), (4050, 1950)])  # lines 0-3
sketch9.addConstraint(Sketcher.Constraint("Vertical", 0))
sketch9.addConstraint(Sketcher.Constraint("Horizontal", 1))
sketch9.addConstraint(Sketcher.Constraint("Vertical", 2))
sketch9.addConstraint(Sketcher.Constraint("Horizontal", 3))
sketch9.addConstraint(Sketcher.Constraint("DistanceX", 1, 1, 1, 2, 1640.0))
sketch9.addConstraint(Sketcher.Constraint("DistanceY", 0, 2, 0, 1, 1250.0))
sketch9.addConstraint(Sketcher.Constraint("DistanceX", -1, 1, 0, 2, 2410.0))
sketch9.addConstraint(Sketcher.Constraint("DistanceY", -1, 1, 0, 2, 700.0))
sketch9.setExpression("Constraints[8]", "Params.sketch9_width")
sketch9.setExpression("Constraints[9]", "Params.sketch9_height")
pocket8 = body.newObject("PartDesign::Pocket", "Pocket007")
pocket8.Profile = sketch9
pocket8.setExpression("Length", "Params.pocket8_length")

# Sketch on XZ plane
sketch10 = body.newObject("Sketcher::SketchObject", "Sketch009")
sketch10.AttachmentSupport = (doc.getObject("XZ_Plane"), [""])
sketch10.MapMode = "FlatFace"
sketch10.AttachmentOffset = App.Placement(V(0, 0, 3475.958515), App.Rotation())
add_polygon(sketch10, [(6700, 1950), (6700, 700), (7920, 700), (7920, 1950)])  # lines 0-3
sketch10.addConstraint(Sketcher.Constraint("Vertical", 0))
sketch10.addConstraint(Sketcher.Constraint("Horizontal", 1))
sketch10.addConstraint(Sketcher.Constraint("Vertical", 2))
sketch10.addConstraint(Sketcher.Constraint("Horizontal", 3))
sketch10.addConstraint(Sketcher.Constraint("DistanceX", 1, 1, 1, 2, 1220.0))
sketch10.addConstraint(Sketcher.Constraint("DistanceY", 0, 2, 0, 1, 1250.0))
sketch10.addConstraint(Sketcher.Constraint("DistanceX", -1, 1, 0, 2, 6700.0))
sketch10.addConstraint(Sketcher.Constraint("DistanceY", -1, 1, 0, 2, 700.0))
sketch10.setExpression("Constraints[8]", "Params.sketch10_width")
sketch10.setExpression("Constraints[9]", "Params.sketch10_height")
pocket9 = body.newObject("PartDesign::Pocket", "Pocket008")
pocket9.Profile = sketch10
pocket9.setExpression("Length", "Params.pocket9_length")

# Sketch on XZ plane
sketch11 = body.newObject("Sketcher::SketchObject", "Sketch010")
sketch11.AttachmentSupport = (doc.getObject("XZ_Plane"), [""])
sketch11.MapMode = "FlatFace"
sketch11.AttachmentOffset = App.Placement(V(0, 0, -4864.041485), App.Rotation())
add_polygon(sketch11, [(7880, 1900), (7880, 700), (6650, 700), (6650, 1900)])  # lines 0-3
sketch11.addConstraint(Sketcher.Constraint("Vertical", 0))
sketch11.addConstraint(Sketcher.Constraint("Horizontal", 1))
sketch11.addConstraint(Sketcher.Constraint("Vertical", 2))
sketch11.addConstraint(Sketcher.Constraint("Horizontal", 3))
sketch11.addConstraint(Sketcher.Constraint("DistanceX", 1, 2, 1, 1, 1230.0))
sketch11.addConstraint(Sketcher.Constraint("DistanceY", 0, 2, 0, 1, 1200.0))
sketch11.addConstraint(Sketcher.Constraint("DistanceX", -1, 1, 0, 2, 7880.0))
sketch11.addConstraint(Sketcher.Constraint("DistanceY", -1, 1, 0, 2, 700.0))
sketch11.setExpression("Constraints[8]", "Params.sketch11_width")
sketch11.setExpression("Constraints[9]", "Params.sketch11_height")
pocket10 = body.newObject("PartDesign::Pocket", "Pocket009")
pocket10.Profile = sketch11
pocket10.setExpression("Length", "Params.pocket10_length")
pocket10.Reversed = True

# Sketch on XZ plane
sketch12 = body.newObject("Sketcher::SketchObject", "Sketch011")
sketch12.AttachmentSupport = (doc.getObject("XZ_Plane"), [""])
sketch12.MapMode = "FlatFace"
sketch12.AttachmentOffset = App.Placement(V(0, 0, -4744.041485), App.Rotation())
add_polygon(sketch12, [(4150, 2080), (4150, 1020), (3050, 1020), (3050, 2080)])  # lines 0-3
sketch12.addConstraint(Sketcher.Constraint("Vertical", 0))
sketch12.addConstraint(Sketcher.Constraint("Horizontal", 1))
sketch12.addConstraint(Sketcher.Constraint("Vertical", 2))
sketch12.addConstraint(Sketcher.Constraint("Horizontal", 3))
sketch12.addConstraint(Sketcher.Constraint("DistanceX", 1, 2, 1, 1, 1100.0))
sketch12.addConstraint(Sketcher.Constraint("DistanceY", 0, 2, 0, 1, 1060.0))
sketch12.addConstraint(Sketcher.Constraint("DistanceX", -1, 1, 0, 2, 4150.0))
sketch12.addConstraint(Sketcher.Constraint("DistanceY", -1, 1, 0, 2, 1020.0))
sketch12.setExpression("Constraints[8]", "Params.sketch12_width")
sketch12.setExpression("Constraints[9]", "Params.sketch12_height")
pocket11 = body.newObject("PartDesign::Pocket", "Pocket010")
pocket11.Profile = sketch12
pocket11.setExpression("Length", "Params.pocket11_length")
pocket11.Reversed = True

# Sketch on YZ plane
sketch13 = body.newObject("Sketcher::SketchObject", "Sketch012")
sketch13.AttachmentSupport = (doc.getObject("YZ_Plane"), [""])
sketch13.MapMode = "FlatFace"
sketch13.AttachmentOffset = App.Placement(V(0, 0, 890), App.Rotation())
add_polygon(sketch13, [(-1935.958515, 2200), (-1935.958515, 0), (-2785.958515, 0), (-2785.958515, 2200)])  # lines 0-3
sketch13.addConstraint(Sketcher.Constraint("Vertical", 0))
sketch13.addConstraint(Sketcher.Constraint("Horizontal", 1))
sketch13.addConstraint(Sketcher.Constraint("Vertical", 2))
sketch13.addConstraint(Sketcher.Constraint("Horizontal", 3))
sketch13.addConstraint(Sketcher.Constraint("PointOnObject", 0, 2, -1))
sketch13.addConstraint(Sketcher.Constraint("DistanceX", 1, 2, 1, 1, 850.0))
sketch13.addConstraint(Sketcher.Constraint("DistanceY", 0, 2, 0, 1, 2200.0))
sketch13.addConstraint(Sketcher.Constraint("DistanceX", 0, 2, -1, 1, 1935.958515))
sketch13.setExpression("Constraints[9]", "Params.sketch13_width")
sketch13.setExpression("Constraints[10]", "Params.sketch13_height")
pocket12 = body.newObject("PartDesign::Pocket", "Pocket011")
pocket12.Profile = sketch13
pocket12.setExpression("Length", "Params.pocket12_length")
pocket12.Reversed = True

# Sketch on YZ plane
sketch14 = body.newObject("Sketcher::SketchObject", "Sketch013")
sketch14.AttachmentSupport = (doc.getObject("YZ_Plane"), [""])
sketch14.MapMode = "FlatFace"
sketch14.AttachmentOffset = App.Placement(V(0, 0, 5905), App.Rotation())
add_polygon(sketch14, [(790, 2000), (790, 0), (90, 0), (90, 2000)])  # lines 0-3
sketch14.addConstraint(Sketcher.Constraint("Vertical", 0))
sketch14.addConstraint(Sketcher.Constraint("Horizontal", 1))
sketch14.addConstraint(Sketcher.Constraint("Vertical", 2))
sketch14.addConstraint(Sketcher.Constraint("Horizontal", 3))
sketch14.addConstraint(Sketcher.Constraint("PointOnObject", 0, 2, -1))
sketch14.addConstraint(Sketcher.Constraint("DistanceX", 1, 2, 1, 1, 700.0))
sketch14.addConstraint(Sketcher.Constraint("DistanceY", 0, 2, 0, 1, 2000.0))
sketch14.addConstraint(Sketcher.Constraint("DistanceX", -1, 1, 0, 2, 790.0))
sketch14.setExpression("Constraints[9]", "Params.sketch14_width")
sketch14.setExpression("Constraints[10]", "Params.sketch14_height")
pocket13 = body.newObject("PartDesign::Pocket", "Pocket012")
pocket13.Profile = sketch14
pocket13.setExpression("Length", "Params.pocket13_length")
pocket13.Reversed = True

# Sketch on YZ plane
sketch15 = body.newObject("Sketcher::SketchObject", "Sketch014")
sketch15.AttachmentSupport = (doc.getObject("YZ_Plane"), [""])
sketch15.MapMode = "FlatFace"
sketch15.AttachmentOffset = App.Placement(V(0, 0, 4695), App.Rotation())
add_polygon(sketch15, [(1784.041485, 2075), (1784.041485, 0), (1524.041485, 0), (1524.041485, 2200), (4424.041485, 2200), (4424.041485, 2075)])  # lines 0-5
sketch15.addConstraint(Sketcher.Constraint("Vertical", 0))
sketch15.addConstraint(Sketcher.Constraint("Horizontal", 1))
sketch15.addConstraint(Sketcher.Constraint("Vertical", 2))
sketch15.addConstraint(Sketcher.Constraint("Horizontal", 3))
sketch15.addConstraint(Sketcher.Constraint("Vertical", 4))
sketch15.addConstraint(Sketcher.Constraint("Horizontal", 5))
sketch15.addConstraint(Sketcher.Constraint("PointOnObject", 0, 2, -1))
sketch15.addConstraint(Sketcher.Constraint("DistanceX", 1, 2, 1, 1, 260.0))
sketch15.addConstraint(Sketcher.Constraint("DistanceX", 3, 1, 3, 2, 2900.0))
sketch15.addConstraint(Sketcher.Constraint("DistanceY", 0, 2, 0, 1, 2075.0))
sketch15.addConstraint(Sketcher.Constraint("DistanceY", 2, 1, 2, 2, 2200.0))
sketch15.addConstraint(Sketcher.Constraint("DistanceX", -1, 1, 0, 2, 1784.041485))
sketch15.setExpression("Constraints[13]", "Params.sketch15_width")
sketch15.setExpression("Constraints[14]", "Params.sketch15_width2")
sketch15.setExpression("Constraints[15]", "Params.sketch15_height")
sketch15.setExpression("Constraints[16]", "Params.sketch15_height2")
pad2 = body.newObject("PartDesign::Pad", "Pad001")
pad2.Profile = sketch15
pad2.setExpression("Length", "Params.pad2_length")
pad2.Reversed = True

# Sketch on XY plane
sketch16 = body.newObject("Sketcher::SketchObject", "Sketch015")
sketch16.AttachmentSupport = (doc.getObject("XY_Plane"), [""])
sketch16.MapMode = "FlatFace"
sketch16.AttachmentOffset = App.Placement(V(0, 0, 2075), App.Rotation())
add_polygon(sketch16, [(4695, 4288.742065), (4570, 4424.041485), (4695, 4424.041485)])  # lines 0-2
sketch16.addConstraint(Sketcher.Constraint("Horizontal", 1))
sketch16.addConstraint(Sketcher.Constraint("Vertical", 2))
sketch16.addConstraint(Sketcher.Constraint("DistanceX", 1, 1, 1, 2, 125.0))
sketch16.addConstraint(Sketcher.Constraint("DistanceX", -1, 1, 0, 2, 4570.0))
sketch16.addConstraint(Sketcher.Constraint("DistanceY", 2, 2, 2, 1, 135.29942))
sketch16.addConstraint(Sketcher.Constraint("DistanceY", -1, 1, 0, 2, 4424.041485))
sketch16.setExpression("Constraints[5]", "Params.sketch16_width")
pad3 = body.newObject("PartDesign::Pad", "Pad002")
pad3.Profile = sketch16
pad3.setExpression("Length", "Params.pad3_length")
pad3.Reversed = True

doc.recompute()
